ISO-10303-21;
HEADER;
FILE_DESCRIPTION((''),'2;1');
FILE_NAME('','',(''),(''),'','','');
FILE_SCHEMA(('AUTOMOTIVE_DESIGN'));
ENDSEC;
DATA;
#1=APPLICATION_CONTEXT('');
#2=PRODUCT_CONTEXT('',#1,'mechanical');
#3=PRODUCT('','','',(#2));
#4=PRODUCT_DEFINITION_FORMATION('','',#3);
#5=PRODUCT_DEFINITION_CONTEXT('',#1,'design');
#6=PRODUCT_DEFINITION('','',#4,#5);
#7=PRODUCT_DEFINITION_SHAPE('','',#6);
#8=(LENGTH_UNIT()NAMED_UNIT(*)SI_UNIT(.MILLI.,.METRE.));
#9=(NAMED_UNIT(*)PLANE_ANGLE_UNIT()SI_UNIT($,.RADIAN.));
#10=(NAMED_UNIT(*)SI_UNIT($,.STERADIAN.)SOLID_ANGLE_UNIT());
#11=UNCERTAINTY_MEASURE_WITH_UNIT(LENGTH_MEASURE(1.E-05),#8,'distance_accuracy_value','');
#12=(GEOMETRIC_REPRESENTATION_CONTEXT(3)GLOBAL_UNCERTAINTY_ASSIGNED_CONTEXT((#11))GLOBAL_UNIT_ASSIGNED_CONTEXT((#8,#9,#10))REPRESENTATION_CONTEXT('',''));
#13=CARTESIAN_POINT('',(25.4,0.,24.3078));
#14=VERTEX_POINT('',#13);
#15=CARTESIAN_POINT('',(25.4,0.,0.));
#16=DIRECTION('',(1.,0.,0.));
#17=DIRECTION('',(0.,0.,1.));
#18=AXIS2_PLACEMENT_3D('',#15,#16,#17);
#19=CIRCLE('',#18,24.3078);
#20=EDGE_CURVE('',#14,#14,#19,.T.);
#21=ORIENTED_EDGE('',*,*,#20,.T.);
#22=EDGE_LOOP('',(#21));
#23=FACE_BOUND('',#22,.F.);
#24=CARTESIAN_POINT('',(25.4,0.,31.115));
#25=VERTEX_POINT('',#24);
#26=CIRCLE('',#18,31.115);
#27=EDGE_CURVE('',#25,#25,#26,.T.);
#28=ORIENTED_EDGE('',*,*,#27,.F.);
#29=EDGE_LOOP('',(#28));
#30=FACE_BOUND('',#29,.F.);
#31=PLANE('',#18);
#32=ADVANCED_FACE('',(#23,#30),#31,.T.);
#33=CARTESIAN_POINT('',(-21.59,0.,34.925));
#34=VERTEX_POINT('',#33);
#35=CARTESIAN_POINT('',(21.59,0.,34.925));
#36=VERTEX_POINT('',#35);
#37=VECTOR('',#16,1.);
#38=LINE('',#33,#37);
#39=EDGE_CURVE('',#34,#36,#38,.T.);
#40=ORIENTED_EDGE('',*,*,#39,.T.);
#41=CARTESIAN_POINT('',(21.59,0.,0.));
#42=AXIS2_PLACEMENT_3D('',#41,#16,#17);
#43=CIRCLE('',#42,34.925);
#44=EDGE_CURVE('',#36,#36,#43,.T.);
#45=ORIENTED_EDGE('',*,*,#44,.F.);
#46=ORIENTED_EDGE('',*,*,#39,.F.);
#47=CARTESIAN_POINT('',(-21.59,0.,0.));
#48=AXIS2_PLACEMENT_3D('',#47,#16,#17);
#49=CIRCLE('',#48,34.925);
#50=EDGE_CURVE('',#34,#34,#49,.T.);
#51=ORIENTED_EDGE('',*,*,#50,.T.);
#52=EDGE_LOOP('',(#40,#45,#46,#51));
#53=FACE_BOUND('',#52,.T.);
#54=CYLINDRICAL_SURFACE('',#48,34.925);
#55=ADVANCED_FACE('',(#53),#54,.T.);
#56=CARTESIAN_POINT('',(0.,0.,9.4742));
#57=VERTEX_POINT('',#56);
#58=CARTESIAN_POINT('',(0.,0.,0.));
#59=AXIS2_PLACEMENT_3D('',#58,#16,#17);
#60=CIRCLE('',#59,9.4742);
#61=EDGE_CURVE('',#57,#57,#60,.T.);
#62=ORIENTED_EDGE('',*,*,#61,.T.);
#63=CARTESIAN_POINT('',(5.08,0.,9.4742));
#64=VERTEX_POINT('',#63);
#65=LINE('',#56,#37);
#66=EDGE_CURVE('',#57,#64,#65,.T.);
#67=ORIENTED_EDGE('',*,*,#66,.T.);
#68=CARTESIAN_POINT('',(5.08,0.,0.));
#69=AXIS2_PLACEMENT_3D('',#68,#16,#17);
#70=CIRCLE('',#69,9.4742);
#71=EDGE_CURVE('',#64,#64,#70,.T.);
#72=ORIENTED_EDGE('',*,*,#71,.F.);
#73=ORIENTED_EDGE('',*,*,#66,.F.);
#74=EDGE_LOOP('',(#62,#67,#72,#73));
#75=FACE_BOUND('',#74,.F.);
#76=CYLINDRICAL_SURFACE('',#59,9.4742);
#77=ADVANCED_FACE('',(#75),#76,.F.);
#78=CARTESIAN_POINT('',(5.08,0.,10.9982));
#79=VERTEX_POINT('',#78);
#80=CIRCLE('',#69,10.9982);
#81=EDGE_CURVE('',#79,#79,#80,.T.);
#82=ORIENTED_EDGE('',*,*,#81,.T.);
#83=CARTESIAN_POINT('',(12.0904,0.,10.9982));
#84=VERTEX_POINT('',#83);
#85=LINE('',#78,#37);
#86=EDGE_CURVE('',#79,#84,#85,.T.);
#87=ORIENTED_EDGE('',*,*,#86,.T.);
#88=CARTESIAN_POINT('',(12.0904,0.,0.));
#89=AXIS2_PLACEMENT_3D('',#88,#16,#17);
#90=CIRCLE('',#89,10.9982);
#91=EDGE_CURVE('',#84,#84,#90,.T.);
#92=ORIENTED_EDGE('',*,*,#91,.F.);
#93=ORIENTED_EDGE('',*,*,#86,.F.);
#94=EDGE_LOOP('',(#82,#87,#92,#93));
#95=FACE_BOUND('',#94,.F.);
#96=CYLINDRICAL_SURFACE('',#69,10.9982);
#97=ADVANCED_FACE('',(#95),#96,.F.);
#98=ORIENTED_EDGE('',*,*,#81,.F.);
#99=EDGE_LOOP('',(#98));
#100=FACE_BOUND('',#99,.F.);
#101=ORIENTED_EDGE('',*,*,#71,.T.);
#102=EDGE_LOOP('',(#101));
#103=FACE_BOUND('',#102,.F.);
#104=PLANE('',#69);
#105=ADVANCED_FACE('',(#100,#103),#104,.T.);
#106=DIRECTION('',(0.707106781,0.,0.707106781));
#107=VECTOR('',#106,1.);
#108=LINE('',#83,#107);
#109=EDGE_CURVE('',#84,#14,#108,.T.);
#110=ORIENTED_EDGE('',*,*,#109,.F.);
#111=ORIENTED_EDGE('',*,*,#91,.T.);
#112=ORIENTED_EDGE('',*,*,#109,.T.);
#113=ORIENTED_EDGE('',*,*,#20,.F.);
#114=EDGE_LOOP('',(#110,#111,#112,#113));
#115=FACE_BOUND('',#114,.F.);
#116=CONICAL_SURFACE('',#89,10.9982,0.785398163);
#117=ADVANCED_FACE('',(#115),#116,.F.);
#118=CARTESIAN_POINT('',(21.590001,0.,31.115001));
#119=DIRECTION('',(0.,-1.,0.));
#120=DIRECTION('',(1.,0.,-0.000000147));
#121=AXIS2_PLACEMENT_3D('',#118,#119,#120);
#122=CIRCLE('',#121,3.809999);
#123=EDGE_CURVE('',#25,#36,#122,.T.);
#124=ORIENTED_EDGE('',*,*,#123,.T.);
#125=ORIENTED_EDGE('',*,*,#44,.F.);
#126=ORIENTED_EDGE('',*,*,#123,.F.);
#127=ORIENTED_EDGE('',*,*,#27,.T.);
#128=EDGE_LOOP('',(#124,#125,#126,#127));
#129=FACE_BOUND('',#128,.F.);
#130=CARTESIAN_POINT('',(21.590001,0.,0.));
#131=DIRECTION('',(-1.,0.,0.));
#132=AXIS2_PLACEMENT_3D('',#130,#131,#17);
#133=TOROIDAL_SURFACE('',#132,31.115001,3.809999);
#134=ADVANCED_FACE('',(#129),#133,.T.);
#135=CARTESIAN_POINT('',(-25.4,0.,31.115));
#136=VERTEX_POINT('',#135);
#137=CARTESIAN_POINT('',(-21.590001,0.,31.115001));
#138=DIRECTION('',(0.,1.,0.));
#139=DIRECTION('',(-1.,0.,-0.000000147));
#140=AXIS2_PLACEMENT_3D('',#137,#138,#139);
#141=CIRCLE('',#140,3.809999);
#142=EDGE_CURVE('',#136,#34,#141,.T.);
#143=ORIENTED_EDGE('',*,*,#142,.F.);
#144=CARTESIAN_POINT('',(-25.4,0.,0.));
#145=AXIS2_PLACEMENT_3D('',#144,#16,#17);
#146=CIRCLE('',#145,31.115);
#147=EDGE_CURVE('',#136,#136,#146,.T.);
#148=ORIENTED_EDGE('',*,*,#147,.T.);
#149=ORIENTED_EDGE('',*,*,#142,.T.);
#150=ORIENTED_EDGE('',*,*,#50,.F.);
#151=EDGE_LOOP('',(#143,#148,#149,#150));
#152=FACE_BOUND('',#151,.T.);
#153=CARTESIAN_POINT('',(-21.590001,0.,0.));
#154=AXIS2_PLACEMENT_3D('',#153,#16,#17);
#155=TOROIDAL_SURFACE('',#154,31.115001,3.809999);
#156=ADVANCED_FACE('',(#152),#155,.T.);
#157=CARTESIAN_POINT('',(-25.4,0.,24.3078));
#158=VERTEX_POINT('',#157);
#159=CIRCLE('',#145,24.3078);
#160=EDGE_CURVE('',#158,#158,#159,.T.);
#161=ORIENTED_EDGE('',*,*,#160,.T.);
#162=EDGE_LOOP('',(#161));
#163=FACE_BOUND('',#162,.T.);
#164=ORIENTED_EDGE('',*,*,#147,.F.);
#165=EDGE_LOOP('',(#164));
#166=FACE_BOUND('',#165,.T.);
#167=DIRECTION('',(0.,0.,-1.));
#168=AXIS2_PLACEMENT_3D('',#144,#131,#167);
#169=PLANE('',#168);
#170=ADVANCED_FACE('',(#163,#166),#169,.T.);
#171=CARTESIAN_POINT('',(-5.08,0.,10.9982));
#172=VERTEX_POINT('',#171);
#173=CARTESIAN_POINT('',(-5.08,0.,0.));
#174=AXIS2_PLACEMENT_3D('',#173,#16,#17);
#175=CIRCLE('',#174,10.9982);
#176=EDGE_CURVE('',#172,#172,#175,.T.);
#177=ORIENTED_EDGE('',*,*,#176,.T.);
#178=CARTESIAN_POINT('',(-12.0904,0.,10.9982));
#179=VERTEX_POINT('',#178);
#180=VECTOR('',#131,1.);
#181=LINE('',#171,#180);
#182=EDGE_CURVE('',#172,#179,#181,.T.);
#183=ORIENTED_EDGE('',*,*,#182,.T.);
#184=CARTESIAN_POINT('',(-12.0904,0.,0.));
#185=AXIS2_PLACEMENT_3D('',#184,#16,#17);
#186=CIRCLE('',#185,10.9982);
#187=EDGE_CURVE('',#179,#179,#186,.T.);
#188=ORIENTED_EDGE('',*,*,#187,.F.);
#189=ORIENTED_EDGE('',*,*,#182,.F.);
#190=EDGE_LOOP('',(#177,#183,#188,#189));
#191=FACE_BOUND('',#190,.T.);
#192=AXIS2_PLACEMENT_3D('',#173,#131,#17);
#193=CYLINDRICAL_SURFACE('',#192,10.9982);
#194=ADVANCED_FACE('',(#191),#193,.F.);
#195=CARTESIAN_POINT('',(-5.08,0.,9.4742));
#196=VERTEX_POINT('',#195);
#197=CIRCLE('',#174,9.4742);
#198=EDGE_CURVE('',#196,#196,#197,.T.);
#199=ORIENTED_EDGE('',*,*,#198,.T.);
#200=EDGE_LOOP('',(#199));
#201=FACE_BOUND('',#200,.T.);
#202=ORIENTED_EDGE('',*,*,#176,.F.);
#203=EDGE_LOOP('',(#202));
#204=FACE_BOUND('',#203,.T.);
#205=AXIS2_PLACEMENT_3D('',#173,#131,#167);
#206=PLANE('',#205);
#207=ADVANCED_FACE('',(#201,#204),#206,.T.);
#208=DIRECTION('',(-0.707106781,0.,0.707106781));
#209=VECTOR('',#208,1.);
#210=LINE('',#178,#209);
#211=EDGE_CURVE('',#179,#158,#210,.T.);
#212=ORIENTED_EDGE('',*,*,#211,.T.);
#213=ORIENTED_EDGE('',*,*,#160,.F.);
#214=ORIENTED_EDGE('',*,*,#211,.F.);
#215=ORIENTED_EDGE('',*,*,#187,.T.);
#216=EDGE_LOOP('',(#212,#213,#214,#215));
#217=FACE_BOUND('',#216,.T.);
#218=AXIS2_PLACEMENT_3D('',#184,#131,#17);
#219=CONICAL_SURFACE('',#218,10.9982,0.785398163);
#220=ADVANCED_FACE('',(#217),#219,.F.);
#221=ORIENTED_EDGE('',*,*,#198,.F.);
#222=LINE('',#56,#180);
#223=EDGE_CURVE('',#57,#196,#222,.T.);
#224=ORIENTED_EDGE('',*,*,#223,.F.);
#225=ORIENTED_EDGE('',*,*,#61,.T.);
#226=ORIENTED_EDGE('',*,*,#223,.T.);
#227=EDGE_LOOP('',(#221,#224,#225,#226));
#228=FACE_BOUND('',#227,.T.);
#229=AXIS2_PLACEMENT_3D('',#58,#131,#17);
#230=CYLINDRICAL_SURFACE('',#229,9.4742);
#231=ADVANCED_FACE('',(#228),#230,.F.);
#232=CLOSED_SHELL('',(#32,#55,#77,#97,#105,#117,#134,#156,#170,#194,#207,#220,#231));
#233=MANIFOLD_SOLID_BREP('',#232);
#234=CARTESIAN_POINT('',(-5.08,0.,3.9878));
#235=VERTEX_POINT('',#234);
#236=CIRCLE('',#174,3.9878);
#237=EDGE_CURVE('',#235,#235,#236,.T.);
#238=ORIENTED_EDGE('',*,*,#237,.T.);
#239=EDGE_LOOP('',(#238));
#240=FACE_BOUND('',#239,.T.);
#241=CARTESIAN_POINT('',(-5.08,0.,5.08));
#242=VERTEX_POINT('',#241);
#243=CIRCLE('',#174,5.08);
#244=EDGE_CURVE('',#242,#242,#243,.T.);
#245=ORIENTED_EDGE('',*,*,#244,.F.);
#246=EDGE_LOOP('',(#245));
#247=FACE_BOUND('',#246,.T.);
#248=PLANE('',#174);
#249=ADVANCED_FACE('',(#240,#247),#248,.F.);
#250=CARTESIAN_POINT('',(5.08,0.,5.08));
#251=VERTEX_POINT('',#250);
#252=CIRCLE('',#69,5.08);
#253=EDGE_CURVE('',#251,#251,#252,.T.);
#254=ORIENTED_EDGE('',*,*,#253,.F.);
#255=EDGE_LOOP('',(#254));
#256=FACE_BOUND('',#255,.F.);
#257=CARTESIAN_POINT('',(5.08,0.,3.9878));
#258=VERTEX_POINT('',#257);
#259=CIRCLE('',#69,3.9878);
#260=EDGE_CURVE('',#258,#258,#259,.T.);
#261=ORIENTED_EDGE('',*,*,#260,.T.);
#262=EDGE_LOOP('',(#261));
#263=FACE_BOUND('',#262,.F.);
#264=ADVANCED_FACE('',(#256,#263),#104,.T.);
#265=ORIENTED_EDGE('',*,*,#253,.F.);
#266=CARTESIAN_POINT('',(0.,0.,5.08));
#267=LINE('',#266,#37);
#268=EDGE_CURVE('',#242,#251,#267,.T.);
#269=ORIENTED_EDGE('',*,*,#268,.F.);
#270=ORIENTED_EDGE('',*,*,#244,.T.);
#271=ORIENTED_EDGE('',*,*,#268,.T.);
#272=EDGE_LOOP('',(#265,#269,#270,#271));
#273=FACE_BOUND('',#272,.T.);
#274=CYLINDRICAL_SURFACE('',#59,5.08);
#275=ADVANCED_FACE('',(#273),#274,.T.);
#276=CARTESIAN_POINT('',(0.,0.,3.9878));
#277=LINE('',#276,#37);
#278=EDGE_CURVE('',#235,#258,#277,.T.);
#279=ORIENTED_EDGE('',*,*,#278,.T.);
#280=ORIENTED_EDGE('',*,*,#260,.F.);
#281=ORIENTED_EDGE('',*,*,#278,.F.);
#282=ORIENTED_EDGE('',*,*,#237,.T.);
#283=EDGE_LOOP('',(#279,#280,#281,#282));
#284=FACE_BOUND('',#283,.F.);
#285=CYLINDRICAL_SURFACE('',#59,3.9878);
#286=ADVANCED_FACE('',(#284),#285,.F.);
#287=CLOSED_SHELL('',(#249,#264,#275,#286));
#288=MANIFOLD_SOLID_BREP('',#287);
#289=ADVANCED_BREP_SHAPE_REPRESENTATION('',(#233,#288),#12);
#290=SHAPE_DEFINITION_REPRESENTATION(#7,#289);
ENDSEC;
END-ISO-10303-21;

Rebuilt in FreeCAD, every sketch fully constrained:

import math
import FreeCAD as App
import Part
import Sketcher

V = App.Vector
Q = App.Units.Quantity


def add_polygon(sketch, points):
    """Adds a closed chain of lines whose ends are joined by coincident constraints."""
    first, n = sketch.GeometryCount, len(points)
    for a, b in zip(points, points[1:] + points[:1]):
        sketch.addGeometry(Part.LineSegment(App.Vector(*a, 0), App.Vector(*b, 0)), False)
    for i in range(n):
        sketch.addConstraint(Sketcher.Constraint("Coincident", first + i, 2, first + (i + 1) % n, 1))

doc = App.newDocument("Part")
body = doc.addObject("PartDesign::Body", "Body")

sketch1 = body.newObject("Sketcher::SketchObject", "Sketch")
sketch1.AttachmentSupport = (doc.getObject("XZ_Plane"), [""])
sketch1.MapMode = "FlatFace"
sketch1.addGeometry([
    Part.LineSegment(V(21.6, 34.9, 0), V(0, 34.9, 0)),
    Part.LineSegment(V(0, 34.9, 0), V(0, 9.5, 0)),
    Part.LineSegment(V(0, 9.5, 0), V(5.1, 9.5, 0)),
    Part.LineSegment(V(5.1, 9.5, 0), V(5.1, 11, 0)),
    Part.LineSegment(V(5.1, 11, 0), V(12.1, 11, 0)),
    Part.LineSegment(V(12.1, 11, 0), V(25.4, 24.3, 0)),
    Part.LineSegment(V(25.4, 24.3, 0), V(25.4, 31.1, 0)),
    Part.ArcOfCircle(Part.Circle(V(21.6, 31.1, 0), V(0, 0, 1), 3.8), math.radians(0), math.radians(90)),
], False)
sketch1.addConstraint([
    Sketcher.Constraint("Coincident", 0, 2, 1, 1),
    Sketcher.Constraint("Coincident", 1, 2, 2, 1),
    Sketcher.Constraint("Coincident", 2, 2, 3, 1),
    Sketcher.Constraint("Coincident", 3, 2, 4, 1),
    Sketcher.Constraint("Coincident", 4, 2, 5, 1),
    Sketcher.Constraint("Coincident", 5, 2, 6, 1),
    Sketcher.Constraint("Tangent", 6, 2, 7, 1),
    Sketcher.Constraint("Tangent", 7, 2, 0, 1),
    Sketcher.Constraint("Horizontal", 0),
    Sketcher.Constraint("Vertical", 1),
    Sketcher.Constraint("Horizontal", 2),
    Sketcher.Constraint("Vertical", 3),
    Sketcher.Constraint("Horizontal", 4),
    Sketcher.Constraint("Vertical", 6),
    Sketcher.Constraint("PointOnObject", 0, 2, -2),
    Sketcher.Constraint("Radius", 7, Q("0.15 in")),
    Sketcher.Constraint("DistanceX", 2, 1, 2, 2, Q("0.2 in")),
    Sketcher.Constraint("DistanceX", -1, 1, 5, 2, Q("1 in")),
    Sketcher.Constraint("Angle", 5, Q("45 deg")),
    Sketcher.Constraint("DistanceY", 3, 1, 3, 2, Q("0.06 in")),
    Sketcher.Constraint("DistanceX", 4, 1, 4, 2, Q("0.276 in")),
    Sketcher.Constraint("DistanceY", 1, 2, 1, 1, Q("1.002 in")),
    Sketcher.Constraint("DistanceY", -1, 1, 7, 3, Q("1.225 in")),
])
revolution = body.newObject("PartDesign::Revolution", "Revolution")
revolution.Profile = sketch1
revolution.ReferenceAxis = (sketch1, ["H_Axis"])
revolution.Angle = 360
body2 = doc.addObject("PartDesign::Body", "Body001")
doc.recompute()

body2.BaseFeature = body
doc.recompute()

mirroring = doc.addObject("Part::Mirroring", "Mirroring")
mirroring.Source = body
mirroring.Base = V(0, 0, 0)
mirroring.Normal = V(1, 0, 0)
body3 = doc.addObject("PartDesign::Body", "Body002")
body3.BaseFeature = mirroring
boolean = body2.newObject("PartDesign::Boolean", "Boolean")
boolean.Type = "Fuse"
boolean.addObjects([body3])
doc.recompute()
body4 = doc.addObject("PartDesign::Body", "Body003")

sketch2 = body4.newObject("Sketcher::SketchObject", "Sketch001")
sketch2.AttachmentSupport = (doc.getObject("XZ_Plane003"), [""])
sketch2.MapMode = "FlatFace"
add_polygon(sketch2, [(-5.1, 5.1), (-5.1, 4), (5.1, 4), (5.1, 5.1)])
sketch2.addConstraint([
    Sketcher.Constraint("Vertical", 0),
    Sketcher.Constraint("Horizontal", 1),
    Sketcher.Constraint("Vertical", 2),
    Sketcher.Constraint("Horizontal", 3),
    Sketcher.Constraint("DistanceX", 1, 1, 1, 2, Q("0.4 in")),
    Sketcher.Constraint("DistanceX", 0, 2, -1, 1, Q("0.2 in")),
    Sketcher.Constraint("DistanceY", -1, 1, 2, 2, Q("0.2 in")),
    Sketcher.Constraint("DistanceY", 0, 2, 0, 1, Q("0.043 in")),
])
revolution2 = body4.newObject("PartDesign::Revolution", "Revolution001")
revolution2.Profile = sketch2
revolution2.ReferenceAxis = (sketch2, ["H_Axis"])
revolution2.Angle = 360
mirroring.Visibility = False

doc.recompute()
